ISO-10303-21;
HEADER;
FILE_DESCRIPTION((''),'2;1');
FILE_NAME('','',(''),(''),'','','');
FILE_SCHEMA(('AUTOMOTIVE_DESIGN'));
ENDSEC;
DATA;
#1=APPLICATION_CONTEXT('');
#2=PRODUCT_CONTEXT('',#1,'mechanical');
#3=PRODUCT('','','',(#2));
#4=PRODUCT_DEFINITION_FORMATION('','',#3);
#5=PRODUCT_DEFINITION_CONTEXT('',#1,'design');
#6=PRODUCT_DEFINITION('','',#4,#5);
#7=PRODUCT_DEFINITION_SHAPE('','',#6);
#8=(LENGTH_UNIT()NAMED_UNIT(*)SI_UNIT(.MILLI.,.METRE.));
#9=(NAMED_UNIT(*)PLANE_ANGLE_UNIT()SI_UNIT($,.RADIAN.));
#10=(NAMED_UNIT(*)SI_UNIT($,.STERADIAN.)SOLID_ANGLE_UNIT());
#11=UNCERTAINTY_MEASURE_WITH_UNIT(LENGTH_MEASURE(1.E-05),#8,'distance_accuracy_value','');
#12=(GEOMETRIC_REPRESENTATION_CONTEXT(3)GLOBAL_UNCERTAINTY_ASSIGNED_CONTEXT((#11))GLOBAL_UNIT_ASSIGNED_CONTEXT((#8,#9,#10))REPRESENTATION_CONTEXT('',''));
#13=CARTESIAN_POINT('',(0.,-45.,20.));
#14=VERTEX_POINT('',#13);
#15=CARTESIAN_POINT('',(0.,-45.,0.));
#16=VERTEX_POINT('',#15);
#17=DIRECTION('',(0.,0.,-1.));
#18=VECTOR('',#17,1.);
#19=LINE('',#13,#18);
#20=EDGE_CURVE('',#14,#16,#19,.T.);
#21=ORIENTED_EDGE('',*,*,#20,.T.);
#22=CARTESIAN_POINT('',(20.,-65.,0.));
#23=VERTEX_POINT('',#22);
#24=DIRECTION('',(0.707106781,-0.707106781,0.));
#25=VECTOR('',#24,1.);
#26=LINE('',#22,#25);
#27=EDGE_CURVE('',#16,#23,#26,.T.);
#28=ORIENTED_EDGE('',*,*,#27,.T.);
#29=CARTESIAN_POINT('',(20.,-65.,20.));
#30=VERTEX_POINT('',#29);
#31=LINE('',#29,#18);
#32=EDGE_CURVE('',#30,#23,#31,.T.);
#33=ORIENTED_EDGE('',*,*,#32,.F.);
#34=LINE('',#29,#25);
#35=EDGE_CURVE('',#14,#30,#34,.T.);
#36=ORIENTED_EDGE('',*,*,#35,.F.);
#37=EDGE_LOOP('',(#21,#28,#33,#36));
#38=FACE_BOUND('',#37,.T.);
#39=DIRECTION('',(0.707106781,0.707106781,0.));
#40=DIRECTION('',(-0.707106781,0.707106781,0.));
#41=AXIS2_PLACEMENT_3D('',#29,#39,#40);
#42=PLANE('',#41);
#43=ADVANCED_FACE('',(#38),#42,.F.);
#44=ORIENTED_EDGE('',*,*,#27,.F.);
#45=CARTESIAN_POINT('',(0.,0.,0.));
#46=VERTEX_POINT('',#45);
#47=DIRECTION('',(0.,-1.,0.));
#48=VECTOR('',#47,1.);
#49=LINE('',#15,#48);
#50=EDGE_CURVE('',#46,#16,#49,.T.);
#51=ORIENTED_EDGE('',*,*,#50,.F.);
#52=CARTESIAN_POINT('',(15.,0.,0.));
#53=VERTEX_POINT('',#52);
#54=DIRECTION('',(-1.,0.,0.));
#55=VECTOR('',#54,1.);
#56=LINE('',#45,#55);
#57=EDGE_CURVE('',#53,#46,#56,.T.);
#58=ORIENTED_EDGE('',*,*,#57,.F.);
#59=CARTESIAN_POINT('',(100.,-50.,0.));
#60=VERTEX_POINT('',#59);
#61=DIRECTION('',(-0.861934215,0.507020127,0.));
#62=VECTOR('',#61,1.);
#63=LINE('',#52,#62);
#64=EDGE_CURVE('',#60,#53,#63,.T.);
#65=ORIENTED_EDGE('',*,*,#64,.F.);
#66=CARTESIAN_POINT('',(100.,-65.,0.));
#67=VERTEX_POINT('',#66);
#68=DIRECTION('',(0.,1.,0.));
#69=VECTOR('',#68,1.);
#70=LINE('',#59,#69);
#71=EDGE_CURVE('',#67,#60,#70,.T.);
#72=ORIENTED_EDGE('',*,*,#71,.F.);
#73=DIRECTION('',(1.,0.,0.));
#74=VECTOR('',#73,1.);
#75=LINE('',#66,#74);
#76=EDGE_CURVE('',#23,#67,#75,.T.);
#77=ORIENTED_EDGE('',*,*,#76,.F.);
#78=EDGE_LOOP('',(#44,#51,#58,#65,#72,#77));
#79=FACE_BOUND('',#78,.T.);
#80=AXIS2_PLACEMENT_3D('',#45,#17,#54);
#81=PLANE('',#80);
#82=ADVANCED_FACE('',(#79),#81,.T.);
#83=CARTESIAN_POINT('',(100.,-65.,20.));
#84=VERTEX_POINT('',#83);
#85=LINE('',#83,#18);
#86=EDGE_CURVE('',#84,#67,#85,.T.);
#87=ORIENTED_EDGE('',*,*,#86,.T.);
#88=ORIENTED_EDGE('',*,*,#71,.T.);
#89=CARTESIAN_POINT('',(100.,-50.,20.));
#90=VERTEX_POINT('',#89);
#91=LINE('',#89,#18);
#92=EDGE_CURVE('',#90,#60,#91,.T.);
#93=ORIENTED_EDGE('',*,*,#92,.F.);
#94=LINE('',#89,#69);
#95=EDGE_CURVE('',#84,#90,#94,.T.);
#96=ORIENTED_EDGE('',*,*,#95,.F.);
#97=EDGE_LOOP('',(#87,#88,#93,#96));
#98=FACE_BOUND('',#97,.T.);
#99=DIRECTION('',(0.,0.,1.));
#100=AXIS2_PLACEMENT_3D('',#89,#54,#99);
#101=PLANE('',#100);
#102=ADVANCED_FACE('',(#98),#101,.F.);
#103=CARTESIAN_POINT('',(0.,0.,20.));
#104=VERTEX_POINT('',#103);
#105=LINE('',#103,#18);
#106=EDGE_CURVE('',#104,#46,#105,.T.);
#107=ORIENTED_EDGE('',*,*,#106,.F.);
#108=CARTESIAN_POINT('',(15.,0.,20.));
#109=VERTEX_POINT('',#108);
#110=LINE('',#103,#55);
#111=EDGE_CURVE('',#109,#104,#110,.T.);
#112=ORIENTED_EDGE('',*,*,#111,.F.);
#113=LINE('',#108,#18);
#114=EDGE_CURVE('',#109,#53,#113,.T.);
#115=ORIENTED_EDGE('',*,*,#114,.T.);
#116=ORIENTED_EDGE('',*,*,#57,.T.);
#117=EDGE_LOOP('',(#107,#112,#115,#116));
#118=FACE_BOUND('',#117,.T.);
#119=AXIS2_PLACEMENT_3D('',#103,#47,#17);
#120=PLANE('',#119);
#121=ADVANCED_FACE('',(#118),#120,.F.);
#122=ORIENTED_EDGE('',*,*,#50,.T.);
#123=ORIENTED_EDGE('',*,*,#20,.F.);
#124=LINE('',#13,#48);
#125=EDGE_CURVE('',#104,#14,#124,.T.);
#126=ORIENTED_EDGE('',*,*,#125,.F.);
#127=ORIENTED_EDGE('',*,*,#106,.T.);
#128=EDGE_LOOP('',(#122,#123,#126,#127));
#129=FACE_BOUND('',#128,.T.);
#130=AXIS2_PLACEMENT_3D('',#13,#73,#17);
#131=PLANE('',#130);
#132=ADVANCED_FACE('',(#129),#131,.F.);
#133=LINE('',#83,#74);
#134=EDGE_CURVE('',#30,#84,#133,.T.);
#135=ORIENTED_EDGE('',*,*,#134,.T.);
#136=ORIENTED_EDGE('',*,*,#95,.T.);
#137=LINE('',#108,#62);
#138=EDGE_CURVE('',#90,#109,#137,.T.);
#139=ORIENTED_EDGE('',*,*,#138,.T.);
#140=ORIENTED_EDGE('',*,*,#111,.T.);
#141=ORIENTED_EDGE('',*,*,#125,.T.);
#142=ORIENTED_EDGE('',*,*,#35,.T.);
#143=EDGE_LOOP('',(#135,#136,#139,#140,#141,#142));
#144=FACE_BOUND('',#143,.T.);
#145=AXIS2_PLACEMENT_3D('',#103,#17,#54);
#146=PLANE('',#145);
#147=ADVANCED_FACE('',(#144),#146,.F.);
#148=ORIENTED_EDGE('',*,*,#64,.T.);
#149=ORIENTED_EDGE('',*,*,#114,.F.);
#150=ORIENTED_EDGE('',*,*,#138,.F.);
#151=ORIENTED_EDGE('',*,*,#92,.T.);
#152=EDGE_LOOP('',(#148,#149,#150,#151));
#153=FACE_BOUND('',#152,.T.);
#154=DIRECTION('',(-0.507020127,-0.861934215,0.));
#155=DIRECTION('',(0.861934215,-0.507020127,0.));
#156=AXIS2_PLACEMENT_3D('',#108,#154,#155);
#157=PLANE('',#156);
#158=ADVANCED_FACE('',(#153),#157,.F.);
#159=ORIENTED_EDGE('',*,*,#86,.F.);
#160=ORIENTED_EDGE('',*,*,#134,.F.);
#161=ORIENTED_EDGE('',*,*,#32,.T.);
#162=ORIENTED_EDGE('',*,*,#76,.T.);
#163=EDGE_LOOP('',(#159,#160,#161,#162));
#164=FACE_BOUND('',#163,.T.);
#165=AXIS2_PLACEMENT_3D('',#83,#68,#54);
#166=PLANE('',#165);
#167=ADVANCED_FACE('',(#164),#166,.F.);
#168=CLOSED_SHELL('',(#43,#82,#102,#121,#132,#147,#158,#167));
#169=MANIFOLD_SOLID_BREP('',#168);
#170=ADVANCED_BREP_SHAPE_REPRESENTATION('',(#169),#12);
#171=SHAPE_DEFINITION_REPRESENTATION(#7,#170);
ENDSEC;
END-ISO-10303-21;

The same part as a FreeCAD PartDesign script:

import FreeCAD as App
import Part
import Sketcher
Q = App.Units.Quantity

doc = App.newDocument("Part")
body = doc.addObject("PartDesign::Body", "Body")

# Sketch on XY plane
sketch1 = doc.addObject("Sketcher::SketchObject", "Sketch")
body.addObject(sketch1)
sketch1.AttachmentSupport = (doc.XY_Plane, [""])
sketch1.MapMode = "FlatFace"
sketch1.addGeometry([
    Part.LineSegment(App.Vector(15, 0, 0), App.Vector(0, 0, 0)),  # 0
    Part.LineSegment(App.Vector(0, 0, 0), App.Vector(0, -45, 0)),  # 1
    Part.LineSegment(App.Vector(0, -45, 0), App.Vector(20, -65, 0)),  # 2
    Part.LineSegment(App.Vector(20, -65, 0), App.Vector(100, -65, 0)),  # 3
    Part.LineSegment(App.Vector(100, -65, 0), App.Vector(100, -50, 0)),  # 4
    Part.LineSegment(App.Vector(100, -50, 0), App.Vector(15, 0, 0)),  # 5
], False)
sketch1.addConstraint([
    Sketcher.Constraint("Coincident", 0, 2, 1, 1),
    Sketcher.Constraint("Coincident", 1, 2, 2, 1),
    Sketcher.Constraint("Coincident", 2, 2, 3, 1),
    Sketcher.Constraint("Coincident", 3, 2, 4, 1),
    Sketcher.Constraint("Coincident", 4, 2, 5, 1),
    Sketcher.Constraint("Coincident", 5, 2, 0, 1),
    Sketcher.Constraint("Horizontal", 0),
    Sketcher.Constraint("Vertical", 1),
    Sketcher.Constraint("Horizontal", 3),
    Sketcher.Constraint("Vertical", 4),
    Sketcher.Constraint("Coincident", 0, 2, -1, 1),
    Sketcher.Constraint("Equal", 0, 4),
    Sketcher.Constraint("DistanceX", 0, 2, 0, 1, 15.0),
    Sketcher.Constraint("DistanceX", 3, 1, 3, 2, 80.0),
    Sketcher.Constraint("DistanceY", 1, 2, 1, 1, 45.0),
    Sketcher.Constraint("Angle", 2, Q("-45 deg")),
    Sketcher.Constraint("DistanceX", -1, 1, 2, 2, 20.0),
])
pad1 = doc.addObject("PartDesign::Pad", "Pad")
body.addObject(pad1)
pad1.Profile = sketch1
pad1.Length = 20

doc.recompute()
